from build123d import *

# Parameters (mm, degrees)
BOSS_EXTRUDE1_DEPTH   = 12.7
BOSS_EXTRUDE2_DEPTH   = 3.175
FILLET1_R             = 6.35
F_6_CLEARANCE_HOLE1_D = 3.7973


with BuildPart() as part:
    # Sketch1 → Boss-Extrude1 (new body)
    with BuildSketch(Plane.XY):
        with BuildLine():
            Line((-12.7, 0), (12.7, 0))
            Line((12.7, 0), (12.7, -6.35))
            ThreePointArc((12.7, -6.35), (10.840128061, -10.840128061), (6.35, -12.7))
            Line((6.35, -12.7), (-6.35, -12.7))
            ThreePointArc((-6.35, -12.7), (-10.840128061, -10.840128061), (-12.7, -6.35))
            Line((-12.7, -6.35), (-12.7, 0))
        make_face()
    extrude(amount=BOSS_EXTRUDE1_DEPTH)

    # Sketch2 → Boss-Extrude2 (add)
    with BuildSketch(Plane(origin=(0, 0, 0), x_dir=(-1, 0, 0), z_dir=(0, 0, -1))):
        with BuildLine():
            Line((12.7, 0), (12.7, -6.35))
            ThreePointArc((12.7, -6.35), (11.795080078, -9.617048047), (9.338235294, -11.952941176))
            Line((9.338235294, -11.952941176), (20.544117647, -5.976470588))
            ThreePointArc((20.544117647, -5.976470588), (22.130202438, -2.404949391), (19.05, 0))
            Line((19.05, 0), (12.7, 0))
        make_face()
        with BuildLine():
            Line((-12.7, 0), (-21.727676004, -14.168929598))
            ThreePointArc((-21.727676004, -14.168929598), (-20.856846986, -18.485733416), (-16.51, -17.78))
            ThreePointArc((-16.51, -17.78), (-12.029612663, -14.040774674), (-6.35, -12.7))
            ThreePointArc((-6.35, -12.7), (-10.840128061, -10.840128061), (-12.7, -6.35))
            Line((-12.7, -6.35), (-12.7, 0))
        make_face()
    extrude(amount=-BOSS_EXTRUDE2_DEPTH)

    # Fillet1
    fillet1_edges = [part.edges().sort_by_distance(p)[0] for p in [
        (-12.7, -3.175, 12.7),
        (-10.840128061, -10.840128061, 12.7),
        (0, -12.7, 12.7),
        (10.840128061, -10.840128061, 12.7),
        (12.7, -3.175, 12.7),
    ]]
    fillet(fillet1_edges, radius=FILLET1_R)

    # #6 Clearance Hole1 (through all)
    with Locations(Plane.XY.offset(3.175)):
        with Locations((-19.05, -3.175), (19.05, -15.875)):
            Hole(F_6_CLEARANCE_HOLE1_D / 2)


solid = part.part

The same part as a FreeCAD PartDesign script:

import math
import FreeCAD as App
import Part
import Sketcher

V = App.Vector
Q = App.Units.Quantity


def edges_at(feature, points):
    """Names of the edges that pass closest to the given points."""
    edges = feature.Shape.Edges
    near = lambda p: min(range(len(edges)), key=lambda i: edges[i].distToShape(Part.Vertex(*p))[0])
    return sorted({f"Edge{near(p) + 1}" for p in points})

doc = App.newDocument("Part")
body = doc.addObject("PartDesign::Body", "Body")

# Sketch on XY plane
sketch1 = doc.addObject("Sketcher::SketchObject", "Sketch")
body.addObject(sketch1)
sketch1.AttachmentSupport = (doc.XY_Plane, [""])
sketch1.MapMode = "FlatFace"
sketch1.addGeometry(Part.LineSegment(V(13, 0, 0), V(-13, 0, 0)), False)
sketch1.addGeometry(Part.LineSegment(V(-13, 0, 0), V(-13, -6, 0)), False)
sketch1.addGeometry(Part.ArcOfCircle(Part.Circle(V(-6, -6, 0), V(0, 0, 1), 6), math.radians(180), math.radians(270)), False)
sketch1.addGeometry(Part.LineSegment(V(-6, -13, 0), V(6, -13, 0)), False)
sketch1.addGeometry(Part.ArcOfCircle(Part.Circle(V(6, -6, 0), V(0, 0, 1), 6), math.radians(-90), math.radians(0)), False)
sketch1.addGeometry(Part.LineSegment(V(13, -6, 0), V(13, 0, 0)), False)
sketch1.addConstraint(Sketcher.Constraint("Coincident", 0, 2, 1, 1))
sketch1.addConstraint(Sketcher.Constraint("Tangent", 1, 2, 2, 1))
sketch1.addConstraint(Sketcher.Constraint("Tangent", 2, 2, 3, 1))
sketch1.addConstraint(Sketcher.Constraint("Tangent", 3, 2, 4, 1))
sketch1.addConstraint(Sketcher.Constraint("Tangent", 4, 2, 5, 1))
sketch1.addConstraint(Sketcher.Constraint("Coincident", 5, 2, 0, 1))
sketch1.addConstraint(Sketcher.Constraint("Horizontal", 0))
sketch1.addConstraint(Sketcher.Constraint("Vertical", 1))
sketch1.addConstraint(Sketcher.Constraint("Horizontal", 3))
sketch1.addConstraint(Sketcher.Constraint("Vertical", 5))
sketch1.addConstraint(Sketcher.Constraint("Equal", 2, 4))
sketch1.addConstraint(Sketcher.Constraint("Symmetric", 0, 2, 5, 2, -1, 1))
sketch1.addConstraint(Sketcher.Constraint("DistanceX", 0, 2, 0, 1, Q("1 in")))
sketch1.addConstraint(Sketcher.Constraint("Radius", 2, Q("0.25 in")))
sketch1.addConstraint(Sketcher.Constraint("DistanceY", 1, 2, 1, 1, Q("0.25 in")))
pad1 = doc.addObject("PartDesign::Pad", "Pad")
body.addObject(pad1)
pad1.Profile = sketch1
pad1.Length = Q("0.5 in")

# Sketch on XY plane
sketch2 = doc.addObject("Sketcher::SketchObject", "Sketch001")
body.addObject(sketch2)
sketch2.AttachmentSupport = (doc.XY_Plane, [""])
sketch2.MapMode = "FlatFace"
sketch2.addGeometry(Part.LineSegment(V(-12.7, 0, 0), V(-12.7, -6.3, 0)), False)
sketch2.addGeometry(Part.ArcOfCircle(Part.Circle(V(-6.3, -6.3, 0), V(0, 0, 1), 6.3), math.radians(180), math.radians(242)), False)
sketch2.addGeometry(Part.LineSegment(V(-9.3, -12, 0), V(-20.5, -6, 0)), False)
sketch2.addGeometry(Part.ArcOfCircle(Part.Circle(V(-19.1, -3.2, 0), V(0, 0, 1), 3.2), math.radians(90), math.radians(242)), False)
sketch2.addGeometry(Part.LineSegment(V(-19.1, 0, 0), V(-12.7, 0, 0)), False)
sketch2.addGeometry(Part.LineSegment(V(12.7, 0, 0), V(21.7, -14.2, 0)), False)
sketch2.addGeometry(Part.ArcOfCircle(Part.Circle(V(19.1, -15.9, 0), V(0, 0, 1), 3.2), math.radians(-143), math.radians(33)), False)
sketch2.addGeometry(Part.ArcOfCircle(Part.Circle(V(6.4, -25.4, 0), V(0, 0, 1), 12.7), math.radians(37), math.radians(90)), False)
sketch2.addGeometry(Part.ArcOfCircle(Part.Circle(V(6.4, -6.4, 0), V(0, 0, 1), 6.3), math.radians(-90), math.radians(0)), False)
sketch2.addGeometry(Part.LineSegment(V(12.7, -6.3, 0), V(12.7, 0, 0)), False)
sketch2.addConstraint(Sketcher.Constraint("Tangent", 0, 2, 1, 1))
sketch2.addConstraint(Sketcher.Constraint("Tangent", 1, 2, 2, 1))
sketch2.addConstraint(Sketcher.Constraint("Tangent", 2, 2, 3, 2))
sketch2.addConstraint(Sketcher.Constraint("Tangent", 3, 1, 4, 1))
sketch2.addConstraint(Sketcher.Constraint("Coincident", 4, 2, 0, 1))
sketch2.addConstraint(Sketcher.Constraint("Tangent", 5, 2, 6, 2))
sketch2.addConstraint(Sketcher.Constraint("Tangent", 6, 1, 7, 1))
sketch2.addConstraint(Sketcher.Constraint("Tangent", 7, 2, 8, 1))
sketch2.addConstraint(Sketcher.Constraint("Tangent", 8, 2, 9, 1))
sketch2.addConstraint(Sketcher.Constraint("Coincident", 9, 2, 5, 1))
sketch2.addConstraint(Sketcher.Constraint("Vertical", 0))
sketch2.addConstraint(Sketcher.Constraint("Horizontal", 4))
sketch2.addConstraint(Sketcher.Constraint("Vertical", 9))
sketch2.addConstraint(Sketcher.Constraint("Equal", 3, 6))
sketch2.addConstraint(Sketcher.Constraint("Equal", 1, 8))
sketch2.addConstraint(Sketcher.Constraint("Symmetric", 4, 2, 9, 2, -1, 1))
sketch2.addConstraint(Sketcher.Constraint("PointOnObject", 3, 1, -1))
sketch2.addConstraint(Sketcher.Constraint("Horizontal", 1, 3, 8, 3))
sketch2.addConstraint(Sketcher.Constraint("Vertical", 7, 3, 8, 3))
sketch2.addConstraint(Sketcher.Constraint("Equal", 4, 0))
sketch2.addConstraint(Sketcher.Constraint("Radius", 7, Q("0.5 in")))
sketch2.addConstraint(Sketcher.Constraint("Radius", 1, Q("0.25 in")))
sketch2.addConstraint(Sketcher.Constraint("DistanceY", 7, 3, -1, 1, Q("1 in")))
sketch2.addConstraint(Sketcher.Constraint("Radius", 3, Q("0.125 in")))
sketch2.addConstraint(Sketcher.Constraint("DistanceX", 1, 3, 6, 3, Q("1 in")))
sketch2.addConstraint(Sketcher.Constraint("DistanceX", 3, 3, 7, 3, Q("1 in")))
pad2 = doc.addObject("PartDesign::Pad", "Pad001")
body.addObject(pad2)
pad2.Profile = sketch2
pad2.Length = Q("0.125 in")
doc.recompute()

fillet = doc.addObject("PartDesign::Fillet", "Fillet")
body.addObject(fillet)
fillet.Base = (pad2, edges_at(pad2, [
    (-12.7, -3.175, 12.7),
    (-10.84, -10.84, 12.7),
    (0, -12.7, 12.7),
    (10.84, -10.84, 12.7),
    (12.7, -3.175, 12.7),
]))
fillet.Radius = Q("0.25 in")

# Sketch on XY plane
sketch3 = doc.addObject("Sketcher::SketchObject", "Sketch002")
body.addObject(sketch3)
sketch3.AttachmentSupport = (doc.XY_Plane, [""])
sketch3.MapMode = "FlatFace"
sketch3.AttachmentOffset = App.Placement(V(0, 0, 0.125 * 25.4), App.Rotation())
sketch3.addGeometry(Part.Circle(V(-19.1, -3.2, 0), V(0, 0, 1), 1.9), False)
sketch3.addGeometry(Part.Circle(V(19.1, -15.9, 0), V(0, 0, 1), 1.9), False)
sketch3.addConstraint(Sketcher.Constraint("Equal", 0, 1))
sketch3.addConstraint(Sketcher.Constraint("Diameter", 0, Q("0.1495 in")))
sketch3.addConstraint(Sketcher.Constraint("DistanceX", 0, 3, 1, 3, Q("1.5 in")))
sketch3.addConstraint(Sketcher.Constraint("DistanceY", 1, 3, 0, 3, Q("0.5 in")))
sketch3.addConstraint(Sketcher.Constraint("DistanceX", 0, 3, -1, 1, Q("0.75 in")))
sketch3.addConstraint(Sketcher.Constraint("DistanceY", 0, 3, -1, 1, Q("0.125 in")))
doc.recompute()
hole = doc.addObject("PartDesign::Hole", "Hole")
body.addObject(hole)
hole.Profile = sketch3
hole.ThreadType = "None"
hole.Diameter = Q("0.1495 in")
hole.DepthType = "ThroughAll"

doc.recompute()
